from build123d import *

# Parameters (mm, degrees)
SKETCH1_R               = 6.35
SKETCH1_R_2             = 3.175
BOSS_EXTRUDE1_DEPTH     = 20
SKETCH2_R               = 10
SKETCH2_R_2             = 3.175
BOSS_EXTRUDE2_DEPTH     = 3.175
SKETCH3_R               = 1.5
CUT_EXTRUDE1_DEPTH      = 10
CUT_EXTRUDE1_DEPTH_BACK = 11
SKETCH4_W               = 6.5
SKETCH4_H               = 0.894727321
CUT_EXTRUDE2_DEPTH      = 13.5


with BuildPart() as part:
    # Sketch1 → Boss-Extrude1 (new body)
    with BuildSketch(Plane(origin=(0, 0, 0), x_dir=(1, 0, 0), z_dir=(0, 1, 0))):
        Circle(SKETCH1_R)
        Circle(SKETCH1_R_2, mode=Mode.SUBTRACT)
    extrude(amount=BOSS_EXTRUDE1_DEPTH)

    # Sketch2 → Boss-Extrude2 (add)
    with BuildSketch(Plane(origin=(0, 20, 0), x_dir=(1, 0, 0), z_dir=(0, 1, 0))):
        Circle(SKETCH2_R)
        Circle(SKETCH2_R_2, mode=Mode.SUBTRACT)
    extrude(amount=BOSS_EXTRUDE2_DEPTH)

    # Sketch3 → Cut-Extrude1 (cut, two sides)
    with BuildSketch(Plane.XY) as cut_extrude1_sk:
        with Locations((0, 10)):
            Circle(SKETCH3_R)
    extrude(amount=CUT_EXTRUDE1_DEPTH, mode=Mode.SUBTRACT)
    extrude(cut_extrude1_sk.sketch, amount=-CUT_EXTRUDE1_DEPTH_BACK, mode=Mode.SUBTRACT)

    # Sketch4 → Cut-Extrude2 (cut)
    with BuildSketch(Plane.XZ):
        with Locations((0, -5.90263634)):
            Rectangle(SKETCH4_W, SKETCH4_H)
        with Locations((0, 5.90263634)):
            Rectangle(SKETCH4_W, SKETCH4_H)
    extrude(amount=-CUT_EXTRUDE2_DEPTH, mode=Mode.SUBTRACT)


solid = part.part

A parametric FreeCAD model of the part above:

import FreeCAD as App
import Part
import Sketcher

V = App.Vector
Q = App.Units.Quantity

doc = App.newDocument("Part")
params = doc.addObject("Spreadsheet::Sheet", "Params")
for row, (alias, value) in enumerate([
    ("sketch1_diameter", "12.7 mm"),
    ("sketch1_diameter2", "6.35 mm"),
    ("pad1_length", "20 mm"),
    ("sketch2_diameter", "20 mm"),
    ("sketch2_diameter2", "6.35 mm"),
    ("pad2_length", "3.175 mm"),
    ("sketch3_diameter", "3 mm"),
    ("sketch4_width", "6.5 mm"),
    ("pocket2_length", "13.5 mm"),
], start=1):
    params.set(f"A{row}", alias)
    params.set(f"B{row}", "=" + value)
    params.setAlias(f"B{row}", alias)

body = doc.addObject("PartDesign::Body", "Body")

# Sketch on XZ plane
sketch1 = body.newObject("Sketcher::SketchObject", "Sketch")
sketch1.AttachmentSupport = (doc.getObject("XZ_Plane"), [""])
sketch1.MapMode = "FlatFace"
sketch1.addGeometry([
    Part.Circle(V(0, 0, 0), V(0, 0, 1), 6.3),
    Part.Circle(V(0, 0, 0), V(0, 0, 1), 3.2),
], False)
sketch1.addConstraint([
    Sketcher.Constraint("Coincident", 0, 3, -1, 1),
    Sketcher.Constraint("Coincident", 1, 3, -1, 1),
    Sketcher.Constraint("Diameter", 0, Q("12.7 mm")),
    Sketcher.Constraint("Diameter", 1, Q("6.35 mm")),
])
sketch1.setExpression("Constraints[2]", "Params.sketch1_diameter")
sketch1.setExpression("Constraints[3]", "Params.sketch1_diameter2")
pad1 = body.newObject("PartDesign::Pad", "Pad")
pad1.Profile = sketch1
pad1.setExpression("Length", "Params.pad1_length")
pad1.Reversed = True

# Sketch on XZ plane
sketch2 = body.newObject("Sketcher::SketchObject", "Sketch001")
sketch2.AttachmentSupport = (doc.getObject("XZ_Plane"), [""])
sketch2.MapMode = "FlatFace"
sketch2.AttachmentOffset = App.Placement(V(0, 0, -20), App.Rotation())
sketch2.addGeometry([
    Part.Circle(V(0, 0, 0), V(0, 0, 1), 10),
    Part.Circle(V(0, 0, 0), V(0, 0, 1), 3.2),
], False)
sketch2.addConstraint([
    Sketcher.Constraint("Coincident", 0, 3, -1, 1),
    Sketcher.Constraint("Coincident", 1, 3, -1, 1),
    Sketcher.Constraint("Diameter", 0, Q("20 mm")),
    Sketcher.Constraint("Diameter", 1, Q("6.35 mm")),
])
sketch2.setExpression("Constraints[2]", "Params.sketch2_diameter")
sketch2.setExpression("Constraints[3]", "Params.sketch2_diameter2")
pad2 = body.newObject("PartDesign::Pad", "Pad001")
pad2.Profile = sketch2
pad2.setExpression("Length", "Params.pad2_length")
pad2.Reversed = True

# Sketch on XY plane
sketch3 = body.newObject("Sketcher::SketchObject", "Sketch002")
sketch3.AttachmentSupport = (doc.getObject("XY_Plane"), [""])
sketch3.MapMode = "FlatFace"
sketch3.addGeometry(Part.Circle(V(0, 10, 0), V(0, 0, 1), 1.5), False)
sketch3.addConstraint([
    Sketcher.Constraint("PointOnObject", 0, 3, -2),
    Sketcher.Constraint("Diameter", 0, Q("3 mm")),
    Sketcher.Constraint("DistanceY", -1, 1, 0, 3, Q("10 mm")),
])
sketch3.setExpression("Constraints[1]", "Params.sketch3_diameter")
pocket1 = body.newObject("PartDesign::Pocket", "Pocket")
pocket1.Profile = sketch3
pocket1.Type = "ThroughAll"
pocket1.Midplane = True

# Sketch on XZ plane
sketch4 = body.newObject("Sketcher::SketchObject", "Sketch003")
sketch4.AttachmentSupport = (doc.getObject("XZ_Plane"), [""])
sketch4.MapMode = "FlatFace"
sketch4.addGeometry([
    Part.LineSegment(V(-3.2, -5.5, 0), V(-3.2, -6.3, 0)),  # 0
    Part.LineSegment(V(-3.2, -6.3, 0), V(3.2, -6.3, 0)),  # 1
    Part.LineSegment(V(3.2, -6.3, 0), V(3.2, -5.5, 0)),  # 2
    Part.LineSegment(V(3.2, -5.5, 0), V(-3.2, -5.5, 0)),  # 3
    Part.LineSegment(V(-3.2, 6.3, 0), V(-3.2, 5.5, 0)),  # 4
    Part.LineSegment(V(-3.2, 5.5, 0), V(3.2, 5.5, 0)),  # 5
    Part.LineSegment(V(3.2, 5.5, 0), V(3.2, 6.3, 0)),  # 6
    Part.LineSegment(V(3.2, 6.3, 0), V(-3.2, 6.3, 0)),  # 7
], False)
sketch4.addConstraint([
    Sketcher.Constraint("Coincident", 0, 2, 1, 1),
    Sketcher.Constraint("Coincident", 1, 2, 2, 1),
    Sketcher.Constraint("Coincident", 2, 2, 3, 1),
    Sketcher.Constraint("Coincident", 3, 2, 0, 1),
    Sketcher.Constraint("Coincident", 4, 2, 5, 1),
    Sketcher.Constraint("Coincident", 5, 2, 6, 1),
    Sketcher.Constraint("Coincident", 6, 2, 7, 1),
    Sketcher.Constraint("Coincident", 7, 2, 4, 1),
    Sketcher.Constraint("Vertical", 0),
    Sketcher.Constraint("Horizontal", 1),
    Sketcher.Constraint("Vertical", 2),
    Sketcher.Constraint("Horizontal", 3),
    Sketcher.Constraint("Vertical", 4),
    Sketcher.Constraint("Horizontal", 5),
    Sketcher.Constraint("Vertical", 6),
    Sketcher.Constraint("Horizontal", 7),
    Sketcher.Constraint("Symmetric", 2, 2, 4, 2, -1, 1),
    Sketcher.Constraint("Symmetric", 0, 2, 6, 2, -1, 1),
    Sketcher.Constraint("Vertical", 3, 2, 4, 2),
    Sketcher.Constraint("DistanceX", 1, 1, 1, 2, Q("6.5 mm")),
    Sketcher.Constraint("DistanceY", 1, 2, 6, 2, Q("12.7 mm")),
    Sketcher.Constraint("DistanceY", 0, 2, 0, 1, Q("0.894727 mm")),
])
sketch4.setExpression("Constraints[19]", "Params.sketch4_width")
pocket2 = body.newObject("PartDesign::Pocket", "Pocket001")
pocket2.Profile = sketch4
pocket2.setExpression("Length", "Params.pocket2_length")

doc.recompute()
